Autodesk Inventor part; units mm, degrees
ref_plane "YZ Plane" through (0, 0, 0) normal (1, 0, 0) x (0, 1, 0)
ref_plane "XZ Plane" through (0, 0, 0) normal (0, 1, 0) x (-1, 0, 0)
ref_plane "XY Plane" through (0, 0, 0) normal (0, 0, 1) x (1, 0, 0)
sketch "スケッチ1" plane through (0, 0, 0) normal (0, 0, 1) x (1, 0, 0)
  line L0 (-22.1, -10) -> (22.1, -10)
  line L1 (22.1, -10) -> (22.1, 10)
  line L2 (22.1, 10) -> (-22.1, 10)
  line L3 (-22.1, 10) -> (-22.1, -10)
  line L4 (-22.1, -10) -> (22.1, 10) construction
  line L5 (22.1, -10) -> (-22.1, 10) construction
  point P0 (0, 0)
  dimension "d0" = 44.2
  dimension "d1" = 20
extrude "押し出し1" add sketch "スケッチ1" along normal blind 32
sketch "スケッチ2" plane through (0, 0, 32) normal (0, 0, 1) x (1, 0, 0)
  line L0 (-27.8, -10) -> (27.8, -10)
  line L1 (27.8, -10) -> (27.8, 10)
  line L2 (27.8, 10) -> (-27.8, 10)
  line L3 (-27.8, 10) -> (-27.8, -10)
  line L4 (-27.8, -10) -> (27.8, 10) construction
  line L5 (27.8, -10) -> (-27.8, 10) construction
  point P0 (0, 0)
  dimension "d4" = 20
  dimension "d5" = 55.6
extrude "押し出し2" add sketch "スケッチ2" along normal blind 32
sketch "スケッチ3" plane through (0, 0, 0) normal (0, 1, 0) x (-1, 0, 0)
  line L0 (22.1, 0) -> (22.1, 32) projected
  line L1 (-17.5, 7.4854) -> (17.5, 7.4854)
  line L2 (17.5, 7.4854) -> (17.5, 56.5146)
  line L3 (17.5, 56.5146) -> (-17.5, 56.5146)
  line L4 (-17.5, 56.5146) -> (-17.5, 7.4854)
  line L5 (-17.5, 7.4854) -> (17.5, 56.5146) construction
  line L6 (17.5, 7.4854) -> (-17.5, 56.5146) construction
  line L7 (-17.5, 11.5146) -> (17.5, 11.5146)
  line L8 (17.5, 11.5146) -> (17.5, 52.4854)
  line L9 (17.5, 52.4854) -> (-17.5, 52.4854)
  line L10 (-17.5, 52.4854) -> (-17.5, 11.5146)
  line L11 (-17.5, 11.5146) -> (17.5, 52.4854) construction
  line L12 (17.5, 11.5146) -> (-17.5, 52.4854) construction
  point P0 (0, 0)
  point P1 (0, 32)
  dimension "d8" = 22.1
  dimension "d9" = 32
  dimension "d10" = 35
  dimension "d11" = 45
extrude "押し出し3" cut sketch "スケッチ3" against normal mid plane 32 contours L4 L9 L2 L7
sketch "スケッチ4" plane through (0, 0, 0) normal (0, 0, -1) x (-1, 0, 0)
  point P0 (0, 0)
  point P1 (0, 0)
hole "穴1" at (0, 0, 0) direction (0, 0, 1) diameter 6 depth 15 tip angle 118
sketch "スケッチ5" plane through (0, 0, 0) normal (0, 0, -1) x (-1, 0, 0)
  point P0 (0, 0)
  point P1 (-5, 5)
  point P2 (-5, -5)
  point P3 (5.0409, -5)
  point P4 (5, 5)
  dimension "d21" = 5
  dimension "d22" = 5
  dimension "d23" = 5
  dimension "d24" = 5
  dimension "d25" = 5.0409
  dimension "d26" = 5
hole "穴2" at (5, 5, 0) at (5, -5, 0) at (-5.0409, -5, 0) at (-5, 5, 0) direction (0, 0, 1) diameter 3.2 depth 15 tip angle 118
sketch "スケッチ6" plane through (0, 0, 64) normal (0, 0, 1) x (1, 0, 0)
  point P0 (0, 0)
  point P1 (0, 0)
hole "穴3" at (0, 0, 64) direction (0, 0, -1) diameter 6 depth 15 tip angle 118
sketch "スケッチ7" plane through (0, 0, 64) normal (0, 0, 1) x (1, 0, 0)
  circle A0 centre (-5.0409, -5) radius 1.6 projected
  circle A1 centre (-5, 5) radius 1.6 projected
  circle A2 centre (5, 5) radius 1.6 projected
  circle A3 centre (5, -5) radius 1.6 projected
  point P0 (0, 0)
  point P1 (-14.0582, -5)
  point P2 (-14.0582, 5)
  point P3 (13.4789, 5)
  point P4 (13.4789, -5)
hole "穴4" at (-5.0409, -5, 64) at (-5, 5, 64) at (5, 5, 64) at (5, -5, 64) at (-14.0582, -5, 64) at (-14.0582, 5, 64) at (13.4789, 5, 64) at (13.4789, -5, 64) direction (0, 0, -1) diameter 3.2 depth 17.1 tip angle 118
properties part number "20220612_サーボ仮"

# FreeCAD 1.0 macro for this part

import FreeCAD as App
import Part
import Sketcher

doc = App.newDocument("Part")
body = doc.addObject("PartDesign::Body", "Body")

sketch1 = body.newObject("Sketcher::SketchObject", "Sketch")
sketch1.AttachmentSupport = (doc.getObject("XY_Plane"), [""])
sketch1.MapMode = "FlatFace"
sketch1.addGeometry([
    Part.LineSegment(App.Vector(-22, 10, 0), App.Vector(-22, -10, 0)),
    Part.LineSegment(App.Vector(-22, -10, 0), App.Vector(22, -10, 0)),
    Part.LineSegment(App.Vector(22, -10, 0), App.Vector(22, 10, 0)),
    Part.LineSegment(App.Vector(22, 10, 0), App.Vector(-22, 10, 0)),
], False)
sketch1.addConstraint([
    Sketcher.Constraint("Coincident", 0, 2, 1, 1),
    Sketcher.Constraint("Coincident", 1, 2, 2, 1),
    Sketcher.Constraint("Coincident", 2, 2, 3, 1),
    Sketcher.Constraint("Coincident", 3, 2, 0, 1),
    Sketcher.Constraint("Vertical", 0),
    Sketcher.Constraint("Horizontal", 1),
    Sketcher.Constraint("Vertical", 2),
    Sketcher.Constraint("Horizontal", 3),
    Sketcher.Constraint("Symmetric", 0, 2, 2, 2, -1, 1),
    Sketcher.Constraint("DistanceY", 0, 2, 0, 1, 20.0),
    Sketcher.Constraint("DistanceX", 1, 1, 1, 2, 44.2),
])
pad1 = body.newObject("PartDesign::Pad", "Pad")
pad1.Profile = sketch1
pad1.Length = 32

sketch2 = body.newObject("Sketcher::SketchObject", "Sketch001")
sketch2.AttachmentSupport = (doc.getObject("XY_Plane"), [""])
sketch2.MapMode = "FlatFace"
sketch2.AttachmentOffset = App.Placement(App.Vector(0, 0, 32), App.Rotation())
sketch2.addGeometry([
    Part.LineSegment(App.Vector(-28, 10, 0), App.Vector(-28, -10, 0)),
    Part.LineSegment(App.Vector(-28, -10, 0), App.Vector(28, -10, 0)),
    Part.LineSegment(App.Vector(28, -10, 0), App.Vector(28, 10, 0)),
    Part.LineSegment(App.Vector(28, 10, 0), App.Vector(-28, 10, 0)),
], False)
sketch2.addConstraint([
    Sketcher.Constraint("Coincident", 0, 2, 1, 1),
    Sketcher.Constraint("Coincident", 1, 2, 2, 1),
    Sketcher.Constraint("Coincident", 2, 2, 3, 1),
    Sketcher.Constraint("Coincident", 3, 2, 0, 1),
    Sketcher.Constraint("Vertical", 0),
    Sketcher.Constraint("Horizontal", 1),
    Sketcher.Constraint("Vertical", 2),
    Sketcher.Constraint("Horizontal", 3),
    Sketcher.Constraint("Symmetric", 0, 2, 2, 2, -1, 1),
    Sketcher.Constraint("DistanceY", 0, 2, 0, 1, 20.0),
    Sketcher.Constraint("DistanceX", 1, 1, 1, 2, 55.6),
])
pad2 = body.newObject("PartDesign::Pad", "Pad001")
pad2.Profile = sketch2
pad2.Length = 32

sketch3 = body.newObject("Sketcher::SketchObject", "Sketch002")
sketch3.AttachmentSupport = (doc.getObject("XZ_Plane"), [""])
sketch3.MapMode = "FlatFace"
sketch3.addGeometry([
    Part.LineSegment(App.Vector(18, 52, 0), App.Vector(18, 12, 0)),
    Part.LineSegment(App.Vector(18, 12, 0), App.Vector(-18, 12, 0)),
    Part.LineSegment(App.Vector(-18, 12, 0), App.Vector(-18, 52, 0)),
    Part.LineSegment(App.Vector(-18, 52, 0), App.Vector(18, 52, 0)),
], False)
sketch3.addConstraint([
    Sketcher.Constraint("Coincident", 0, 2, 1, 1),
    Sketcher.Constraint("Coincident", 1, 2, 2, 1),
    Sketcher.Constraint("Coincident", 2, 2, 3, 1),
    Sketcher.Constraint("Coincident", 3, 2, 0, 1),
    Sketcher.Constraint("Vertical", 0),
    Sketcher.Constraint("Horizontal", 1),
    Sketcher.Constraint("Vertical", 2),
    Sketcher.Constraint("Horizontal", 3),
    Sketcher.Constraint("DistanceX", 1, 2, 1, 1, 35.0),
    Sketcher.Constraint("DistanceX", -1, 1, 0, 2, 17.5),
    Sketcher.Constraint("DistanceY", 0, 2, 0, 1, 40.9708),
    Sketcher.Constraint("DistanceY", -1, 1, 0, 2, 11.5146),
])
pocket1 = body.newObject("PartDesign::Pocket", "Pocket")
pocket1.Profile = sketch3
pocket1.Length = 32
pocket1.Midplane = True

sketch4 = body.newObject("Sketcher::SketchObject", "Sketch003")
sketch4.AttachmentSupport = (doc.getObject("XY_Plane"), [""])
sketch4.MapMode = "FlatFace"
sketch4.addGeometry(Part.Circle(App.Vector(0, 0, 0), App.Vector(0, 0, 1), 3), False)
sketch4.addConstraint([
    Sketcher.Constraint("Coincident", 0, 3, -1, 1),
    Sketcher.Constraint("Diameter", 0, 6.0),
])
doc.recompute()
hole = body.newObject("PartDesign::Hole", "Hole")
hole.Profile = sketch4
hole.ThreadType = "None"
hole.Diameter = 6
hole.DepthType = "Dimension"
hole.Depth = 15
hole.DrillPoint = "Angled"
hole.DrillPointAngle = 118
hole.Reversed = True

sketch5 = body.newObject("Sketcher::SketchObject", "Sketch004")
sketch5.AttachmentSupport = (doc.getObject("XY_Plane"), [""])
sketch5.MapMode = "FlatFace"
sketch5.addGeometry([
    Part.Circle(App.Vector(5, 5, 0), App.Vector(0, 0, 1), 1.6),
    Part.Circle(App.Vector(5, -5, 0), App.Vector(0, 0, 1), 1.6),
    Part.Circle(App.Vector(-5, -5, 0), App.Vector(0, 0, 1), 1.6),
    Part.Circle(App.Vector(-5, 5, 0), App.Vector(0, 0, 1), 1.6),
], False)
sketch5.addConstraint([
    Sketcher.Constraint("Equal", 0, 1),
    Sketcher.Constraint("Equal", 1, 2),
    Sketcher.Constraint("Equal", 2, 3),
    Sketcher.Constraint("Symmetric", 1, 3, 3, 3, -1, 1),
    Sketcher.Constraint("Symmetric", 0, 3, 3, 3, -2),
    Sketcher.Constraint("Horizontal", 1, 3, 2, 3),
    Sketcher.Constraint("Diameter", 0, 3.2),
    Sketcher.Constraint("DistanceX", -1, 1, 0, 3, 5.0),
    Sketcher.Constraint("DistanceY", -1, 1, 0, 3, 5.0),
    Sketcher.Constraint("DistanceX", 2, 3, -1, 1, 5.041),
])
doc.recompute()
hole2 = body.newObject("PartDesign::Hole", "Hole001")
hole2.Profile = sketch5
hole2.ThreadType = "None"
hole2.Diameter = 3.2
hole2.DepthType = "Dimension"
hole2.Depth = 15
hole2.DrillPoint = "Angled"
hole2.DrillPointAngle = 118
hole2.Reversed = True

sketch6 = body.newObject("Sketcher::SketchObject", "Sketch005")
sketch6.AttachmentSupport = (doc.getObject("XY_Plane"), [""])
sketch6.MapMode = "FlatFace"
sketch6.AttachmentOffset = App.Placement(App.Vector(0, 0, 64), App.Rotation())
sketch6.addGeometry(Part.Circle(App.Vector(0, 0, 0), App.Vector(0, 0, 1), 3), False)
sketch6.addConstraint([
    Sketcher.Constraint("Coincident", 0, 3, -1, 1),
    Sketcher.Constraint("Diameter", 0, 6.0),
])
doc.recompute()
hole3 = body.newObject("PartDesign::Hole", "Hole002")
hole3.Profile = sketch6
hole3.ThreadType = "None"
hole3.Diameter = 6
hole3.DepthType = "Dimension"
hole3.Depth = 15
hole3.DrillPoint = "Angled"
hole3.DrillPointAngle = 118

sketch7 = body.newObject("Sketcher::SketchObject", "Sketch006")
sketch7.AttachmentSupport = (doc.getObject("XY_Plane"), [""])
sketch7.MapMode = "FlatFace"
sketch7.AttachmentOffset = App.Placement(App.Vector(0, 0, 64), App.Rotation())
sketch7.addGeometry([
    Part.Circle(App.Vector(-5, -5, 0), App.Vector(0, 0, 1), 1.6),
    Part.Circle(App.Vector(-5, 5, 0), App.Vector(0, 0, 1), 1.6),
    Part.Circle(App.Vector(5, 5, 0), App.Vector(0, 0, 1), 1.6),
    Part.Circle(App.Vector(5, -5, 0), App.Vector(0, 0, 1), 1.6),
    Part.Circle(App.Vector(-14.1, -5, 0), App.Vector(0, 0, 1), 1.6),
    Part.Circle(App.Vector(-14.1, 5, 0), App.Vector(0, 0, 1), 1.6),
    Part.Circle(App.Vector(13.5, 5, 0), App.Vector(0, 0, 1), 1.6),
    Part.Circle(App.Vector(13.5, -5, 0), App.Vector(0, 0, 1), 1.6),
], False)
sketch7.addConstraint([
    Sketcher.Constraint("Equal", 0, 1),
    Sketcher.Constraint("Equal", 1, 2),
    Sketcher.Constraint("Equal", 2, 3),
    Sketcher.Constraint("Equal", 3, 4),
    Sketcher.Constraint("Equal", 4, 5),
    Sketcher.Constraint("Equal", 5, 6),
    Sketcher.Constraint("Equal", 6, 7),
    Sketcher.Constraint("Symmetric", 1, 3, 3, 3, -1, 1),
    Sketcher.Constraint("Symmetric", 1, 3, 2, 3, -2),
    Sketcher.Constraint("Symmetric", 4, 3, 5, 3, -1),
    Sketcher.Constraint("Symmetric", 6, 3, 7, 3, -1),
    Sketcher.Constraint("Horizontal", 0, 3, 3, 3),
    Sketcher.Constraint("Horizontal", 3, 3, 4, 3),
    Sketcher.Constraint("Horizontal", 5, 3, 6, 3),
    Sketcher.Constraint("Diameter", 0, 3.2),
    Sketcher.Constraint("DistanceY", 0, 3, -1, 1, 5.0),
    Sketcher.Constraint("DistanceX", 1, 3, -1, 1, 5.0),
    Sketcher.Constraint("DistanceX", 0, 3, -1, 1, 5.041),
    Sketcher.Constraint("DistanceX", -1, 1, 6, 3, 13.479),
    Sketcher.Constraint("DistanceX", 5, 3, 6, 3, 27.537),
])
doc.recompute()
hole4 = body.newObject("PartDesign::Hole", "Hole003")
hole4.Profile = sketch7
hole4.ThreadType = "None"
hole4.Diameter = 3.2
hole4.DepthType = "Dimension"
hole4.Depth = 17.1
hole4.DrillPoint = "Angled"
hole4.DrillPointAngle = 118

doc.recompute()
